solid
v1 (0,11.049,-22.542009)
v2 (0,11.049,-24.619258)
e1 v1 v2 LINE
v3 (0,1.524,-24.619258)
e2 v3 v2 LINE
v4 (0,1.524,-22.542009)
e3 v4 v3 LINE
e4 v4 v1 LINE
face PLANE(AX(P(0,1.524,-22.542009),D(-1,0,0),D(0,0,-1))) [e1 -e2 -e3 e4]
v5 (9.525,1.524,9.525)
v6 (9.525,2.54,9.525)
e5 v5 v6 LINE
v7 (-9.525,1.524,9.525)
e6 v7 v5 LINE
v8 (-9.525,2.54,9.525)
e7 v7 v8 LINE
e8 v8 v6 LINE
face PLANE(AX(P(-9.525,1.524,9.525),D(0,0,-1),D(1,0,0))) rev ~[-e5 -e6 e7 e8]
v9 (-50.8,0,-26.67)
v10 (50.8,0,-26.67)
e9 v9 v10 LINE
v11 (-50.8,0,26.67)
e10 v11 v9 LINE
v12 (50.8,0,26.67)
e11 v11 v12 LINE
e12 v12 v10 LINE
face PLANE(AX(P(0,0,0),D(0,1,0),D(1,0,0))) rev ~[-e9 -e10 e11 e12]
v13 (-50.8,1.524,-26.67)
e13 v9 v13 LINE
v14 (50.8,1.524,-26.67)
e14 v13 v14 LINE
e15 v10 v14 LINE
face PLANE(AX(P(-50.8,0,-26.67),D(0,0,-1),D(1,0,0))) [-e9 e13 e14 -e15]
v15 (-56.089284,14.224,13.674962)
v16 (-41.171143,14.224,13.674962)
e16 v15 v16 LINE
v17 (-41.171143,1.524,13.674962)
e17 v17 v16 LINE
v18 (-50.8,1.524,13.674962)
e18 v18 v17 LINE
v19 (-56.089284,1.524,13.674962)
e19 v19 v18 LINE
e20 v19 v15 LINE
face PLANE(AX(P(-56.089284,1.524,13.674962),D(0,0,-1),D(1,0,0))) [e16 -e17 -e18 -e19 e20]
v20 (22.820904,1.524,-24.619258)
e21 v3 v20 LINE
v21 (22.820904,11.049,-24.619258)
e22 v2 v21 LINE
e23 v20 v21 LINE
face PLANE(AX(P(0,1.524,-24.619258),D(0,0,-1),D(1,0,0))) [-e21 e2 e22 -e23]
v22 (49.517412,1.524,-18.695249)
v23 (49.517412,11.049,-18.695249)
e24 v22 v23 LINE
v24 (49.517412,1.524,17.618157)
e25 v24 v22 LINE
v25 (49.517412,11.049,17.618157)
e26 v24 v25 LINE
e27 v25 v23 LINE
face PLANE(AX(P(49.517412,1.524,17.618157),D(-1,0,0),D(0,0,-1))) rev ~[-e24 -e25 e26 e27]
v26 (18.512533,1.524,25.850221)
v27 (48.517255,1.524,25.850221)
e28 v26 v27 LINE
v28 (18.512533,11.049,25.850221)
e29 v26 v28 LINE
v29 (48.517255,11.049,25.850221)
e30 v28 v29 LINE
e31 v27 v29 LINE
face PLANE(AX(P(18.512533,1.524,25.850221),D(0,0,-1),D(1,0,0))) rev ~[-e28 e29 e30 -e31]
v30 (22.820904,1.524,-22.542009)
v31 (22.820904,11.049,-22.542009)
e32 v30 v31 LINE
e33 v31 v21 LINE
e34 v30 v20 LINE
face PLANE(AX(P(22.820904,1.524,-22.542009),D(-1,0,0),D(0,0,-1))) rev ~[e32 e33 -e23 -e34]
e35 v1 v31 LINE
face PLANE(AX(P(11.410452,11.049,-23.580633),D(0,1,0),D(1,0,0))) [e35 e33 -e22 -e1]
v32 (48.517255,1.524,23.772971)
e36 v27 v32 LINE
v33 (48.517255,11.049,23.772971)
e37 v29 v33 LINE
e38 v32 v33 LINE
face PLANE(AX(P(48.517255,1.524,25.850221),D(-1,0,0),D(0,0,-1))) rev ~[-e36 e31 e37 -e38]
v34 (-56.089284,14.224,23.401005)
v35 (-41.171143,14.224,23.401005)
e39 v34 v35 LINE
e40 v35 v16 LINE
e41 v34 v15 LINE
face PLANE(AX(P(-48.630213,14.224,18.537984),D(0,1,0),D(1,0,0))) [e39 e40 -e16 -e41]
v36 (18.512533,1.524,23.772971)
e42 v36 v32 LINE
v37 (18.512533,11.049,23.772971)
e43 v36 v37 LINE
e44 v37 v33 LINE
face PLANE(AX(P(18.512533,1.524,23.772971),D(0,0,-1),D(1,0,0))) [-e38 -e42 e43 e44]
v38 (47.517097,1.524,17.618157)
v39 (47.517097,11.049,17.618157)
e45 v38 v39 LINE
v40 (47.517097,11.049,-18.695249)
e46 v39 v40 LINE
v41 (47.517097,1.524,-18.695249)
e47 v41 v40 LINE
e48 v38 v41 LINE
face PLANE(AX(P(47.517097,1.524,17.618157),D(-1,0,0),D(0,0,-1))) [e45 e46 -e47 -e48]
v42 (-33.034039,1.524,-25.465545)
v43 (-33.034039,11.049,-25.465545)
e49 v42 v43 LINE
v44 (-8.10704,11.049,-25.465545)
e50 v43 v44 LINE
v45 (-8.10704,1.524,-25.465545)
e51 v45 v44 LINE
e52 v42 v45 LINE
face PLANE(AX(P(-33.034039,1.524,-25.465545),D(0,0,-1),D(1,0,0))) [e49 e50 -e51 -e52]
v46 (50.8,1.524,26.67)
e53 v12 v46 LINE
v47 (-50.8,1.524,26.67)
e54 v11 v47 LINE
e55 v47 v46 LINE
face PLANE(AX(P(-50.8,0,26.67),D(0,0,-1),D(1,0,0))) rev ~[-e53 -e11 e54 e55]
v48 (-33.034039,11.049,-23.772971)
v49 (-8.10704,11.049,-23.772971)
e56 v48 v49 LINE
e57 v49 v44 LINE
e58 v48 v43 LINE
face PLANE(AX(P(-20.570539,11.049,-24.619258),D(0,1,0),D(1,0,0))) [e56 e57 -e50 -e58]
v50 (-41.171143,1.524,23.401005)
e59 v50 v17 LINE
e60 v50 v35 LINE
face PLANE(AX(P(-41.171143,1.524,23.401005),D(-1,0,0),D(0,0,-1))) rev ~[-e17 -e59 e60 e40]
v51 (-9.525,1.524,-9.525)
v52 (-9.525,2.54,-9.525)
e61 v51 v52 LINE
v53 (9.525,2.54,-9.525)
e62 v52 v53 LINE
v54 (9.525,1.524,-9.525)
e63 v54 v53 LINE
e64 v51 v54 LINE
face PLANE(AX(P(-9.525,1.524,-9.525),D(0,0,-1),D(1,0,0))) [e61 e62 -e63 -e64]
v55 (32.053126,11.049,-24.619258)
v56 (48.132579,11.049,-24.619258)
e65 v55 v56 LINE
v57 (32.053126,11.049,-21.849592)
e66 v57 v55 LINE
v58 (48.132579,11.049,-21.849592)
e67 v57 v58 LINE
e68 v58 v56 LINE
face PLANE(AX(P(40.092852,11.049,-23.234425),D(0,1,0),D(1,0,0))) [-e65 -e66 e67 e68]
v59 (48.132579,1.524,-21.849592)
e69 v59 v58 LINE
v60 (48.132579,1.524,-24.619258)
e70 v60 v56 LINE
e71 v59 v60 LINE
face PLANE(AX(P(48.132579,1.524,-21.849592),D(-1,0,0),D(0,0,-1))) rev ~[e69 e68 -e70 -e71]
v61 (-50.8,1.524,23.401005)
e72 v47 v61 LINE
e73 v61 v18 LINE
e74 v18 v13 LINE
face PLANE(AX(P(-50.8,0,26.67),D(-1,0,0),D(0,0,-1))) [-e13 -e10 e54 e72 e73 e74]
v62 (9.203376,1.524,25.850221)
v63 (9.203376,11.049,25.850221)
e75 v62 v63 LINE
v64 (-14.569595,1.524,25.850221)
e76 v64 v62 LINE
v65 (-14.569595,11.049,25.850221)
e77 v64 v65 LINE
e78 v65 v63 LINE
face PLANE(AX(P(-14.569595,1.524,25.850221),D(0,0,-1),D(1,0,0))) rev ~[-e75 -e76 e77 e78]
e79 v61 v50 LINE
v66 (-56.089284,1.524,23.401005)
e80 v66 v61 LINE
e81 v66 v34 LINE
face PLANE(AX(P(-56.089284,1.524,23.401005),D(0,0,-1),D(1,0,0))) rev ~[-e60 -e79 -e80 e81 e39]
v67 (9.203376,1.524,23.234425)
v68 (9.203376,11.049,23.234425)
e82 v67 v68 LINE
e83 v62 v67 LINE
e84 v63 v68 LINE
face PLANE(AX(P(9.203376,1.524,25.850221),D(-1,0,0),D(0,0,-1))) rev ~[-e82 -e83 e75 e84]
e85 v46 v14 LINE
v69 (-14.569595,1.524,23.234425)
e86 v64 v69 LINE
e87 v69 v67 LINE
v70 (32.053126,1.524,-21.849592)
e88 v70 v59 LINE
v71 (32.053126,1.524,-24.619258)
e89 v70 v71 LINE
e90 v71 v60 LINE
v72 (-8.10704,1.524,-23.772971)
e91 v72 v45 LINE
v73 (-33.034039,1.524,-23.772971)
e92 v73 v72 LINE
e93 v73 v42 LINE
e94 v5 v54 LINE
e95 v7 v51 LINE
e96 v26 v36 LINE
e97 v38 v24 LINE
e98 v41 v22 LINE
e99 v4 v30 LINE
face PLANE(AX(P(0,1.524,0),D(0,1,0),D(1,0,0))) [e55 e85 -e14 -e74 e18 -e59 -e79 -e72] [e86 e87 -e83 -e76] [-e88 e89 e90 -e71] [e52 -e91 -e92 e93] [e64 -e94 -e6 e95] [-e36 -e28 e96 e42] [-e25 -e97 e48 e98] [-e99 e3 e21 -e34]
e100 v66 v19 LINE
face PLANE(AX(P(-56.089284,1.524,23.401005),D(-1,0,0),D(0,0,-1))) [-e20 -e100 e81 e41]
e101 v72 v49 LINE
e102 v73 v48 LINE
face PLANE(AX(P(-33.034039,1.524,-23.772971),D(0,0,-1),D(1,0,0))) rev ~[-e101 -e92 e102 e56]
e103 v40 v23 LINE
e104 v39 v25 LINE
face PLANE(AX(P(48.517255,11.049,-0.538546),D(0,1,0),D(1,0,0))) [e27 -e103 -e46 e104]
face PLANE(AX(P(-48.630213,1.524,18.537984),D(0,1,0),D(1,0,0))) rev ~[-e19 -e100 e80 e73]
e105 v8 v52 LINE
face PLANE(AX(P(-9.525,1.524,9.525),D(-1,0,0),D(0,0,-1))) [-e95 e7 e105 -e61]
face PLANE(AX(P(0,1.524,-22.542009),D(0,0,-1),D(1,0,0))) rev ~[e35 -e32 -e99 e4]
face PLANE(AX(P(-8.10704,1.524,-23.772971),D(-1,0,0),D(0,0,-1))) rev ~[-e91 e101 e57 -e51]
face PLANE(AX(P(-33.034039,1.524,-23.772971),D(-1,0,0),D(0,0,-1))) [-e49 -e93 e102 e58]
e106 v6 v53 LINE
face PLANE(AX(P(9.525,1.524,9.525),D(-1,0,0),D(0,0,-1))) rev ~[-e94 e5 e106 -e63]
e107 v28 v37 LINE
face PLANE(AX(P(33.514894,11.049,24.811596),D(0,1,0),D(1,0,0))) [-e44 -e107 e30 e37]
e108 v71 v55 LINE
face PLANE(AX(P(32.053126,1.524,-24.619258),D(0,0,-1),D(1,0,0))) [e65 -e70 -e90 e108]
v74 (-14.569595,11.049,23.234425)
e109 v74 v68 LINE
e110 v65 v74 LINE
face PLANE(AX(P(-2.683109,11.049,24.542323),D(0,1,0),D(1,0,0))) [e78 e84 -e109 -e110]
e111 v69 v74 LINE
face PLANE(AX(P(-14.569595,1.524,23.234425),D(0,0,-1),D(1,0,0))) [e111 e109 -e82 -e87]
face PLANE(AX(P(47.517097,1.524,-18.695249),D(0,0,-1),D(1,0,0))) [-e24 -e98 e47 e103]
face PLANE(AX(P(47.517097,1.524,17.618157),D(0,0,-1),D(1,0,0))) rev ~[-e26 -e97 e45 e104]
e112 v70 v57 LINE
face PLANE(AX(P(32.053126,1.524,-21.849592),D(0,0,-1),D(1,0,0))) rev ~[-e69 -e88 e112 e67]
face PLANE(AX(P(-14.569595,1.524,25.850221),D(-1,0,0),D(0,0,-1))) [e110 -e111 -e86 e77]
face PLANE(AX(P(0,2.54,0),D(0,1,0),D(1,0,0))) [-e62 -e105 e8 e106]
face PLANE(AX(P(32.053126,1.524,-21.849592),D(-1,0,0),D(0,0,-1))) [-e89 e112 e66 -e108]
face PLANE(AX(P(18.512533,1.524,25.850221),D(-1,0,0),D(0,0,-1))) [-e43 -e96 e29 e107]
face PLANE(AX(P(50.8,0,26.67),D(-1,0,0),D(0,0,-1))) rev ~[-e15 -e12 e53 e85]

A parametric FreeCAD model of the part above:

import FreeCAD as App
import Part
import Sketcher
from FreeCAD import Vector
Q = App.Units.Quantity

doc = App.newDocument("Part")
body = doc.addObject("PartDesign::Body", "Body")

# Sketch on XZ plane
sketch1 = body.newObject("Sketcher::SketchObject", "Sketch")
sketch1.AttachmentSupport = (doc.getObject("XZ_Plane"), [""])
sketch1.MapMode = "FlatFace"
sketch1.addGeometry([
    Part.LineSegment(Vector(-51, -27, 0), Vector(-51, 27, 0)),
    Part.LineSegment(Vector(-51, 27, 0), Vector(51, 27, 0)),
    Part.LineSegment(Vector(51, 27, 0), Vector(51, -27, 0)),
    Part.LineSegment(Vector(51, -27, 0), Vector(-51, -27, 0)),
], False)
sketch1.addConstraint([
    Sketcher.Constraint("Coincident", 0, 2, 1, 1),
    Sketcher.Constraint("Coincident", 1, 2, 2, 1),
    Sketcher.Constraint("Coincident", 2, 2, 3, 1),
    Sketcher.Constraint("Coincident", 3, 2, 0, 1),
    Sketcher.Constraint("Vertical", 0),
    Sketcher.Constraint("Horizontal", 1),
    Sketcher.Constraint("Vertical", 2),
    Sketcher.Constraint("Horizontal", 3),
    Sketcher.Constraint("Symmetric", 0, 2, 2, 2, -1, 1),
    Sketcher.Constraint("DistanceX", 1, 1, 1, 2, Q("4 in")),
    Sketcher.Constraint("DistanceY", 0, 1, 0, 2, Q("2.1 in")),
])
pad1 = body.newObject("PartDesign::Pad", "Pad")
pad1.Profile = sketch1
pad1.Length = Q("0.06 in")
pad1.Reversed = True

# Sketch on XZ plane
sketch2 = body.newObject("Sketcher::SketchObject", "Sketch001")
sketch2.AttachmentSupport = (doc.getObject("XZ_Plane"), [""])
sketch2.MapMode = "FlatFace"
sketch2.AttachmentOffset = App.Placement(Vector(0, 0, -0.06 * 25.4), App.Rotation())
sketch2.addGeometry([
    Part.LineSegment(Vector(-10, -10, 0), Vector(-10, 10, 0)),
    Part.LineSegment(Vector(-10, 10, 0), Vector(10, 10, 0)),
    Part.LineSegment(Vector(10, 10, 0), Vector(10, -10, 0)),
    Part.LineSegment(Vector(10, -10, 0), Vector(-10, -10, 0)),
], False)
sketch2.addConstraint([
    Sketcher.Constraint("Coincident", 0, 2, 1, 1),
    Sketcher.Constraint("Coincident", 1, 2, 2, 1),
    Sketcher.Constraint("Coincident", 2, 2, 3, 1),
    Sketcher.Constraint("Coincident", 3, 2, 0, 1),
    Sketcher.Constraint("Vertical", 0),
    Sketcher.Constraint("Horizontal", 1),
    Sketcher.Constraint("Vertical", 2),
    Sketcher.Constraint("Horizontal", 3),
    Sketcher.Constraint("Symmetric", 0, 2, 2, 2, -1, 1),
    Sketcher.Constraint("Equal", 3, 0),
    Sketcher.Constraint("DistanceX", 1, 1, 1, 2, Q("0.75 in")),
])
pad2 = body.newObject("PartDesign::Pad", "Pad001")
pad2.Profile = sketch2
pad2.Length = Q("0.04 in")
pad2.Reversed = True

# Sketch on XZ plane
sketch3 = body.newObject("Sketcher::SketchObject", "Sketch002")
sketch3.AttachmentSupport = (doc.getObject("XZ_Plane"), [""])
sketch3.MapMode = "FlatFace"
sketch3.AttachmentOffset = App.Placement(Vector(0, 0, -0.06 * 25.4), App.Rotation())
sketch3.addGeometry([
    Part.LineSegment(Vector(-56, 14, 0), Vector(-56, 23, 0)),
    Part.LineSegment(Vector(-56, 23, 0), Vector(-41, 23, 0)),
    Part.LineSegment(Vector(-41, 23, 0), Vector(-41, 14, 0)),
    Part.LineSegment(Vector(-41, 14, 0), Vector(-56, 14, 0)),
], False)
sketch3.addConstraint([
    Sketcher.Constraint("Coincident", 0, 2, 1, 1),
    Sketcher.Constraint("Coincident", 1, 2, 2, 1),
    Sketcher.Constraint("Coincident", 2, 2, 3, 1),
    Sketcher.Constraint("Coincident", 3, 2, 0, 1),
    Sketcher.Constraint("Vertical", 0),
    Sketcher.Constraint("Horizontal", 1),
    Sketcher.Constraint("Vertical", 2),
    Sketcher.Constraint("Horizontal", 3),
    Sketcher.Constraint("DistanceX", 1, 1, 1, 2, 14.918141),
    Sketcher.Constraint("DistanceY", 0, 1, 0, 2, 9.726043),
    Sketcher.Constraint("DistanceX", 0, 2, -1, 1, 56.089284),
    Sketcher.Constraint("DistanceY", -1, 1, 0, 2, 23.401005),
])
pad3 = body.newObject("PartDesign::Pad", "Pad002")
pad3.Profile = sketch3
pad3.Length = Q("0.5 in")
pad3.Reversed = True

# Sketch on XZ plane
sketch4 = body.newObject("Sketcher::SketchObject", "Sketch003")
sketch4.AttachmentSupport = (doc.getObject("XZ_Plane"), [""])
sketch4.MapMode = "FlatFace"
sketch4.AttachmentOffset = App.Placement(Vector(0, 0, -0.06 * 25.4), App.Rotation())
sketch4.addGeometry([
    Part.LineSegment(Vector(-33, -25.5, 0), Vector(-33, -23.8, 0)),  # 0
    Part.LineSegment(Vector(-33, -23.8, 0), Vector(-8.1, -23.8, 0)),  # 1
    Part.LineSegment(Vector(-8.1, -23.8, 0), Vector(-8.1, -25.5, 0)),  # 2
    Part.LineSegment(Vector(-8.1, -25.5, 0), Vector(-33, -25.5, 0)),  # 3
    Part.LineSegment(Vector(0, -24.6, 0), Vector(0, -22.5, 0)),  # 4
    Part.LineSegment(Vector(0, -22.5, 0), Vector(22.8, -22.5, 0)),  # 5
    Part.LineSegment(Vector(22.8, -22.5, 0), Vector(22.8, -24.6, 0)),  # 6
    Part.LineSegment(Vector(22.8, -24.6, 0), Vector(0, -24.6, 0)),  # 7
    Part.LineSegment(Vector(32.1, -24.6, 0), Vector(32.1, -21.8, 0)),  # 8
    Part.LineSegment(Vector(32.1, -21.8, 0), Vector(48.1, -21.8, 0)),  # 9
    Part.LineSegment(Vector(48.1, -21.8, 0), Vector(48.1, -24.6, 0)),  # 10
    Part.LineSegment(Vector(48.1, -24.6, 0), Vector(32.1, -24.6, 0)),  # 11
    Part.LineSegment(Vector(47.5, -18.7, 0), Vector(47.5, 17.6, 0)),  # 12
    Part.LineSegment(Vector(47.5, 17.6, 0), Vector(49.5, 17.6, 0)),  # 13
    Part.LineSegment(Vector(49.5, 17.6, 0), Vector(49.5, -18.7, 0)),  # 14
    Part.LineSegment(Vector(49.5, -18.7, 0), Vector(47.5, -18.7, 0)),  # 15
    Part.LineSegment(Vector(18.5, 23.8, 0), Vector(18.5, 25.9, 0)),  # 16
    Part.LineSegment(Vector(18.5, 25.9, 0), Vector(48.5, 25.9, 0)),  # 17
    Part.LineSegment(Vector(48.5, 25.9, 0), Vector(48.5, 23.8, 0)),  # 18
    Part.LineSegment(Vector(48.5, 23.8, 0), Vector(18.5, 23.8, 0)),  # 19
    Part.LineSegment(Vector(-14.6, 23.2, 0), Vector(-14.6, 25.9, 0)),  # 20
    Part.LineSegment(Vector(-14.6, 25.9, 0), Vector(9.2, 25.9, 0)),  # 21
    Part.LineSegment(Vector(9.2, 25.9, 0), Vector(9.2, 23.2, 0)),  # 22
    Part.LineSegment(Vector(9.2, 23.2, 0), Vector(-14.6, 23.2, 0)),  # 23
], False)
sketch4.addConstraint([
    Sketcher.Constraint("Coincident", 0, 2, 1, 1),
    Sketcher.Constraint("Coincident", 1, 2, 2, 1),
    Sketcher.Constraint("Coincident", 2, 2, 3, 1),
    Sketcher.Constraint("Coincident", 3, 2, 0, 1),
    Sketcher.Constraint("Coincident", 4, 2, 5, 1),
    Sketcher.Constraint("Coincident", 5, 2, 6, 1),
    Sketcher.Constraint("Coincident", 6, 2, 7, 1),
    Sketcher.Constraint("Coincident", 7, 2, 4, 1),
    Sketcher.Constraint("Coincident", 8, 2, 9, 1),
    Sketcher.Constraint("Coincident", 9, 2, 10, 1),
    Sketcher.Constraint("Coincident", 10, 2, 11, 1),
    Sketcher.Constraint("Coincident", 11, 2, 8, 1),
    Sketcher.Constraint("Coincident", 12, 2, 13, 1),
    Sketcher.Constraint("Coincident", 13, 2, 14, 1),
    Sketcher.Constraint("Coincident", 14, 2, 15, 1),
    Sketcher.Constraint("Coincident", 15, 2, 12, 1),
    Sketcher.Constraint("Coincident", 16, 2, 17, 1),
    Sketcher.Constraint("Coincident", 17, 2, 18, 1),
    Sketcher.Constraint("Coincident", 18, 2, 19, 1),
    Sketcher.Constraint("Coincident", 19, 2, 16, 1),
    Sketcher.Constraint("Coincident", 20, 2, 21, 1),
    Sketcher.Constraint("Coincident", 21, 2, 22, 1),
    Sketcher.Constraint("Coincident", 22, 2, 23, 1),
    Sketcher.Constraint("Coincident", 23, 2, 20, 1),
    Sketcher.Constraint("Vertical", 0),
    Sketcher.Constraint("Horizontal", 1),
    Sketcher.Constraint("Vertical", 2),
    Sketcher.Constraint("Horizontal", 3),
    Sketcher.Constraint("Vertical", 4),
    Sketcher.Constraint("Horizontal", 5),
    Sketcher.Constraint("Vertical", 6),
    Sketcher.Constraint("Horizontal", 7),
    Sketcher.Constraint("Vertical", 8),
    Sketcher.Constraint("Horizontal", 9),
    Sketcher.Constraint("Vertical", 10),
    Sketcher.Constraint("Horizontal", 11),
    Sketcher.Constraint("Vertical", 12),
    Sketcher.Constraint("Horizontal", 13),
    Sketcher.Constraint("Vertical", 14),
    Sketcher.Constraint("Horizontal", 15),
    Sketcher.Constraint("Vertical", 16),
    Sketcher.Constraint("Horizontal", 17),
    Sketcher.Constraint("Vertical", 18),
    Sketcher.Constraint("Horizontal", 19),
    Sketcher.Constraint("Vertical", 20),
    Sketcher.Constraint("Horizontal", 21),
    Sketcher.Constraint("Vertical", 22),
    Sketcher.Constraint("Horizontal", 23),
    Sketcher.Constraint("PointOnObject", 4, 2, -2),
    Sketcher.Constraint("Horizontal", 7, 2, 10, 2),
    Sketcher.Constraint("Horizontal", 17, 2, 20, 2),
    Sketcher.Constraint("Equal", 6, 16),
    Sketcher.Constraint("DistanceX", 1, 1, 1, 2, 24.926999),
    Sketcher.Constraint("DistanceY", 2, 2, 4, 2, Q("0.1150999 in")),
    Sketcher.Constraint("DistanceX", 17, 1, 17, 2, 30.004721),
    Sketcher.Constraint("DistanceX", 21, 1, 21, 2, 23.772971),
    Sketcher.Constraint("DistanceY", 4, 1, 4, 2, 2.07725),
    Sketcher.Constraint("DistanceX", 5, 1, 5, 2, 22.820904),
    Sketcher.Constraint("DistanceX", 9, 1, 9, 2, 16.079453),
    Sketcher.Constraint("DistanceX", 13, 1, 13, 2, 2.000315),
    Sketcher.Constraint("DistanceY", 0, 1, 0, 2, 1.692574),
    Sketcher.Constraint("DistanceY", 8, 1, 8, 2, 2.769667),
    Sketcher.Constraint("DistanceY", 12, 1, 12, 2, 36.313406),
    Sketcher.Constraint("DistanceY", 20, 1, 20, 2, 2.615796),
    Sketcher.Constraint("DistanceX", 0, 2, -1, 1, 33.034039),
    Sketcher.Constraint("DistanceY", 0, 2, -1, 1, 23.772971),
    Sketcher.Constraint("DistanceX", -1, 1, 9, 2, 48.132579),
    Sketcher.Constraint("DistanceX", -1, 1, 13, 2, 49.517412),
    Sketcher.Constraint("DistanceY", 14, 2, -1, 1, 18.695249),
    Sketcher.Constraint("DistanceY", -1, 1, 16, 2, 25.850221),
    Sketcher.Constraint("DistanceX", 16, 2, 13, 2, 31.004879),
    Sketcher.Constraint("DistanceX", 20, 2, 16, 2, 33.082129),
])
pad4 = body.newObject("PartDesign::Pad", "Pad003")
pad4.Profile = sketch4
pad4.Length = Q("0.375 in")
pad4.Reversed = True

doc.recompute()
